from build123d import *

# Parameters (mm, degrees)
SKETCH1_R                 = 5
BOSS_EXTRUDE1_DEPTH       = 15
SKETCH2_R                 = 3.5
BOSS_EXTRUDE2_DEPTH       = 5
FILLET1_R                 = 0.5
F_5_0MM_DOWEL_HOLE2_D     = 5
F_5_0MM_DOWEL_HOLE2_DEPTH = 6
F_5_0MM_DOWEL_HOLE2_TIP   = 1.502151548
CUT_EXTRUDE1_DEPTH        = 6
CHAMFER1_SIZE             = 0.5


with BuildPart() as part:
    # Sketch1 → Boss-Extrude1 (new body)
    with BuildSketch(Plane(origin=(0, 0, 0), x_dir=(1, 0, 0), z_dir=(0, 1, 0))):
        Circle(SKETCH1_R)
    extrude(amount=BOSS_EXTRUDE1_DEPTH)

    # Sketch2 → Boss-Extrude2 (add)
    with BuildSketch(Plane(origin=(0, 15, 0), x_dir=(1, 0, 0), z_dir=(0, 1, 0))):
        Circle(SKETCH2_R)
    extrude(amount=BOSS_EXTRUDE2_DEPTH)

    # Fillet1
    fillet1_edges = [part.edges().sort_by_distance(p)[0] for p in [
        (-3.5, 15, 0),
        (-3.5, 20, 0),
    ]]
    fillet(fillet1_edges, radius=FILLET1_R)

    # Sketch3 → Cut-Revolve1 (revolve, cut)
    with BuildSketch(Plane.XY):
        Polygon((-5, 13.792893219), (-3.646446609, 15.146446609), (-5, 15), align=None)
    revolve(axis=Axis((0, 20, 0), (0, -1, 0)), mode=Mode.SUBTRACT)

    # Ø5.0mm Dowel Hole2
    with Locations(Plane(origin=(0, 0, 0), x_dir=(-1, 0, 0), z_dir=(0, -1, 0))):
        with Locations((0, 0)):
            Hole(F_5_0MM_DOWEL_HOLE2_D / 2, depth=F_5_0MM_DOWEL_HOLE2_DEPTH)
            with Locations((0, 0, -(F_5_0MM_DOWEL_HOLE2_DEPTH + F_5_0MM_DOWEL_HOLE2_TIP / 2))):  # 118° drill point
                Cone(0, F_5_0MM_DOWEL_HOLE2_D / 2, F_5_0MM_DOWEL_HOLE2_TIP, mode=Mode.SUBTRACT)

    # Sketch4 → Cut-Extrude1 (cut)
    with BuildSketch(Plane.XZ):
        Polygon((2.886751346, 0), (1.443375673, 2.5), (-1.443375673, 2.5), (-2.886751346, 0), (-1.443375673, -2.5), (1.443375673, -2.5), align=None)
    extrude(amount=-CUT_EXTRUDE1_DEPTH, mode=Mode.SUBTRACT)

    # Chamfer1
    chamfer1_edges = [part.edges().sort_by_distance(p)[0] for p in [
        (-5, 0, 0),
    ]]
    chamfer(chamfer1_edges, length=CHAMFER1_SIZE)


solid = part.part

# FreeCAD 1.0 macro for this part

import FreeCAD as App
import Part
import Sketcher
from FreeCAD import Vector
Q = App.Units.Quantity


def edges_at(feature, points):
    """Names of the edges that pass closest to the given points."""
    edges = feature.Shape.Edges
    near = lambda p: min(range(len(edges)), key=lambda i: edges[i].distToShape(Part.Vertex(*p))[0])
    return sorted({f"Edge{near(p) + 1}" for p in points})


def add_polygon(sketch, points):
    """Adds a closed chain of lines whose ends are joined by coincident constraints."""
    first, n = sketch.GeometryCount, len(points)
    for a, b in zip(points, points[1:] + points[:1]):
        sketch.addGeometry(Part.LineSegment(App.Vector(*a, 0), App.Vector(*b, 0)), False)
    for i in range(n):
        sketch.addConstraint(Sketcher.Constraint("Coincident", first + i, 2, first + (i + 1) % n, 1))

doc = App.newDocument("Part")
params = doc.addObject("Spreadsheet::Sheet", "Params")
for row, (alias, value) in enumerate([
    ("sketch1_diameter", "10 mm"),
    ("pad1_length", "15 mm"),
    ("sketch2_diameter", "7 mm"),
    ("pad2_length", "5 mm"),
    ("fillet_radius", "0.5 mm"),
    ("groove_angle", "360 deg"),
    ("sketch4_diameter", "5 mm"),
    ("hole_diameter", "5 mm"),
    ("hole_depth", "6 mm"),
    ("pocket1_length", "6 mm"),
    ("chamfer_size", "0.5 mm"),
], start=1):
    params.set(f"A{row}", alias)
    params.set(f"B{row}", "=" + value)
    params.setAlias(f"B{row}", alias)

body = doc.addObject("PartDesign::Body", "Body")

sketch1 = body.newObject("Sketcher::SketchObject", "Sketch")
sketch1.AttachmentSupport = (doc.getObject("XZ_Plane"), [""])
sketch1.MapMode = "FlatFace"
sketch1.addGeometry(Part.Circle(Vector(0, 0, 0), Vector(0, 0, 1), 5), False)
sketch1.addConstraint([
    Sketcher.Constraint("Coincident", 0, 3, -1, 1),
    Sketcher.Constraint("Diameter", 0, 10.0),
])
sketch1.setExpression("Constraints[1]", "Params.sketch1_diameter")
pad1 = body.newObject("PartDesign::Pad", "Pad")
pad1.Profile = sketch1
pad1.setExpression("Length", "Params.pad1_length")
pad1.Reversed = True

sketch2 = body.newObject("Sketcher::SketchObject", "Sketch001")
sketch2.AttachmentSupport = (doc.getObject("XZ_Plane"), [""])
sketch2.MapMode = "FlatFace"
sketch2.AttachmentOffset = App.Placement(Vector(0, 0, -15), App.Rotation())
sketch2.addGeometry(Part.Circle(Vector(0, 0, 0), Vector(0, 0, 1), 3.5), False)
sketch2.addConstraint([
    Sketcher.Constraint("Coincident", 0, 3, -1, 1),
    Sketcher.Constraint("Diameter", 0, 7.0),
])
sketch2.setExpression("Constraints[1]", "Params.sketch2_diameter")
pad2 = body.newObject("PartDesign::Pad", "Pad001")
pad2.Profile = sketch2
pad2.setExpression("Length", "Params.pad2_length")
pad2.Reversed = True
doc.recompute()

fillet = body.newObject("PartDesign::Fillet", "Fillet")
fillet.Base = (pad2, edges_at(pad2, [(-3.5, 15, 0), (-3.5, 20, 0)]))
fillet.setExpression("Radius", "Params.fillet_radius")

sketch3 = body.newObject("Sketcher::SketchObject", "Sketch002")
sketch3.AttachmentSupport = (doc.getObject("XY_Plane"), [""])
sketch3.MapMode = "FlatFace"
add_polygon(sketch3, [(-5, 13.8), (-3.6, 15.1), (-5, 15)])
sketch3.addConstraint([
    Sketcher.Constraint("Vertical", 2),
    Sketcher.Constraint("Angle", 0, Q("45 deg")),
    Sketcher.Constraint("DistanceX", 1, 2, -1, 1, 5.0),
    Sketcher.Constraint("DistanceY", -1, 1, 1, 2, 15.0),
    Sketcher.Constraint("DistanceY", 2, 2, 2, 1, 1.207107),
    Sketcher.Constraint("Distance", 0, 1.914214),
])
groove = body.newObject("PartDesign::Groove", "Groove")
groove.Profile = sketch3
groove.ReferenceAxis = (sketch3, ["V_Axis"])
groove.setExpression("Angle", "Params.groove_angle")

sketch4 = body.newObject("Sketcher::SketchObject", "Sketch003")
sketch4.AttachmentSupport = (doc.getObject("XZ_Plane"), [""])
sketch4.MapMode = "FlatFace"
sketch4.addGeometry(Part.Circle(Vector(0, 0, 0), Vector(0, 0, 1), 2.5), False)
sketch4.addConstraint([
    Sketcher.Constraint("Coincident", 0, 3, -1, 1),
    Sketcher.Constraint("Diameter", 0, 5.0),
])
sketch4.setExpression("Constraints[1]", "Params.sketch4_diameter")
doc.recompute()
hole = body.newObject("PartDesign::Hole", "Hole")
hole.Profile = sketch4
hole.ThreadType = "None"
hole.setExpression("Diameter", "Params.hole_diameter")
hole.DepthType = "Dimension"
hole.setExpression("Depth", "Params.hole_depth")
hole.DrillPoint = "Angled"
hole.DrillPointAngle = 118

sketch5 = body.newObject("Sketcher::SketchObject", "Sketch004")
sketch5.AttachmentSupport = (doc.getObject("XZ_Plane"), [""])
sketch5.MapMode = "FlatFace"
add_polygon(sketch5, [(2.9, 0), (1.4, 2.5), (-1.4, 2.5), (-2.9, 0), (-1.4, -2.5), (1.4, -2.5)])
sketch5.addConstraint([
    Sketcher.Constraint("Horizontal", 1),
    Sketcher.Constraint("Horizontal", 4),
    Sketcher.Constraint("Symmetric", 0, 2, 3, 2, -1, 1),
    Sketcher.Constraint("Symmetric", 2, 2, 5, 2, -1, 1),
    Sketcher.Constraint("PointOnObject", 2, 2, -1),
    Sketcher.Constraint("Parallel", 2, 5),
    Sketcher.Constraint("Vertical", 1, 2, 3, 2),
    Sketcher.Constraint("Angle", 0, Q("120 deg")),
    Sketcher.Constraint("DistanceY", 3, 2, 1, 2, 5.0),
    Sketcher.Constraint("DistanceX", 1, 2, 1, 1, 2.886751),
])
pocket1 = body.newObject("PartDesign::Pocket", "Pocket")
pocket1.Profile = sketch5
pocket1.setExpression("Length", "Params.pocket1_length")
doc.recompute()

chamfer = body.newObject("PartDesign::Chamfer", "Chamfer")
chamfer.Base = (pocket1, edges_at(pocket1, [(-5, 0, 0)]))
chamfer.setExpression("Size", "Params.chamfer_size")

doc.recompute()
